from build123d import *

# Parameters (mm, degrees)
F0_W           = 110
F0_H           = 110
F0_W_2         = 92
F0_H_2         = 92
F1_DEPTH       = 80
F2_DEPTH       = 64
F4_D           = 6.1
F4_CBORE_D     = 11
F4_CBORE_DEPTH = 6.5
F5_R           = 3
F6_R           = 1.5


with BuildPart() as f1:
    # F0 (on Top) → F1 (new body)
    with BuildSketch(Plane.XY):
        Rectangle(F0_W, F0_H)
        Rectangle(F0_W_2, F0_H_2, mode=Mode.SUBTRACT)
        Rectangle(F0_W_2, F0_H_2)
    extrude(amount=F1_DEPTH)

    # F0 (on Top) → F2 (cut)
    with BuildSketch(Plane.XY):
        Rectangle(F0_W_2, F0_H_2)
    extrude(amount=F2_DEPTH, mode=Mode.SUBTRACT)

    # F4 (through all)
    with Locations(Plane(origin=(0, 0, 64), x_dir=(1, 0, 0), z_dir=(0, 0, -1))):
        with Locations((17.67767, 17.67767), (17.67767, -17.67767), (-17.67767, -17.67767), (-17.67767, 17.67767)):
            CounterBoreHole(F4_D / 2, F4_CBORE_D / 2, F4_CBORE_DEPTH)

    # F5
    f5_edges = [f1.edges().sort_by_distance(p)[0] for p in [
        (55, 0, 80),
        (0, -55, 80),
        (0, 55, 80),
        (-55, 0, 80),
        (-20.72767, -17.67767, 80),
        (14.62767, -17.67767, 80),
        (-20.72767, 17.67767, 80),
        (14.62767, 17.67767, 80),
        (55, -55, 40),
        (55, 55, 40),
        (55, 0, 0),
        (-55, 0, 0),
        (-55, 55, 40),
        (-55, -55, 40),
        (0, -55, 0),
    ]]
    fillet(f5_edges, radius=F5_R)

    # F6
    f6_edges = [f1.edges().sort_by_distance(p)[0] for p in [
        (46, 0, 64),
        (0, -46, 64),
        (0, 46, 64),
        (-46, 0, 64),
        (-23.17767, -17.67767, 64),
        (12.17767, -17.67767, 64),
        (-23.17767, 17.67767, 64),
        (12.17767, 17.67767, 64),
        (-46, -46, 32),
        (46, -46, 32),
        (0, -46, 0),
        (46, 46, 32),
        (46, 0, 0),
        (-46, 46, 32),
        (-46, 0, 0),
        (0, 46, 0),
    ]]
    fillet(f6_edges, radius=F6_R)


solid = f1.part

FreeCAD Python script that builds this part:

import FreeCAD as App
import Part
import Sketcher
from FreeCAD import Vector
Q = App.Units.Quantity


def edges_at(feature, points):
    """Names of the edges that pass closest to the given points."""
    edges = feature.Shape.Edges
    near = lambda p: min(range(len(edges)), key=lambda i: edges[i].distToShape(Part.Vertex(*p))[0])
    return sorted({f"Edge{near(p) + 1}" for p in points})

doc = App.newDocument("Part")
body = doc.addObject("PartDesign::Body", "Body")

sketch1 = body.newObject("Sketcher::SketchObject", "Sketch")
sketch1.AttachmentSupport = (doc.getObject("XY_Plane"), [""])
sketch1.MapMode = "FlatFace"
sketch1.addGeometry([
    Part.LineSegment(Vector(-55, 55, 0), Vector(-55, -55, 0)),
    Part.LineSegment(Vector(-55, -55, 0), Vector(55, -55, 0)),
    Part.LineSegment(Vector(55, -55, 0), Vector(55, 55, 0)),
    Part.LineSegment(Vector(55, 55, 0), Vector(-55, 55, 0)),
], False)
sketch1.addConstraint([
    Sketcher.Constraint("Coincident", 0, 2, 1, 1),
    Sketcher.Constraint("Coincident", 1, 2, 2, 1),
    Sketcher.Constraint("Coincident", 2, 2, 3, 1),
    Sketcher.Constraint("Coincident", 3, 2, 0, 1),
    Sketcher.Constraint("Vertical", 0),
    Sketcher.Constraint("Horizontal", 1),
    Sketcher.Constraint("Vertical", 2),
    Sketcher.Constraint("Horizontal", 3),
    Sketcher.Constraint("Symmetric", 0, 2, 2, 2, -1, 1),
    Sketcher.Constraint("Equal", 3, 0),
    Sketcher.Constraint("DistanceX", 1, 1, 1, 2, Q("110 mm")),
])
pad1 = body.newObject("PartDesign::Pad", "Pad")
pad1.Profile = sketch1
pad1.Length = 80

sketch2 = body.newObject("Sketcher::SketchObject", "Sketch001")
sketch2.AttachmentSupport = (doc.getObject("XY_Plane"), [""])
sketch2.MapMode = "FlatFace"
sketch2.addGeometry([
    Part.LineSegment(Vector(-46, 46, 0), Vector(-46, -46, 0)),
    Part.LineSegment(Vector(-46, -46, 0), Vector(46, -46, 0)),
    Part.LineSegment(Vector(46, -46, 0), Vector(46, 46, 0)),
    Part.LineSegment(Vector(46, 46, 0), Vector(-46, 46, 0)),
], False)
sketch2.addConstraint([
    Sketcher.Constraint("Coincident", 0, 2, 1, 1),
    Sketcher.Constraint("Coincident", 1, 2, 2, 1),
    Sketcher.Constraint("Coincident", 2, 2, 3, 1),
    Sketcher.Constraint("Coincident", 3, 2, 0, 1),
    Sketcher.Constraint("Vertical", 0),
    Sketcher.Constraint("Horizontal", 1),
    Sketcher.Constraint("Vertical", 2),
    Sketcher.Constraint("Horizontal", 3),
    Sketcher.Constraint("Symmetric", 0, 2, 2, 2, -1, 1),
    Sketcher.Constraint("Equal", 3, 0),
    Sketcher.Constraint("DistanceX", 1, 1, 1, 2, Q("92 mm")),
])
pocket1 = body.newObject("PartDesign::Pocket", "Pocket")
pocket1.Profile = sketch2
pocket1.Length = 64
pocket1.Reversed = True

sketch3 = body.newObject("Sketcher::SketchObject", "Sketch002")
sketch3.AttachmentSupport = (doc.getObject("XY_Plane"), [""])
sketch3.MapMode = "FlatFace"
sketch3.AttachmentOffset = App.Placement(Vector(0, 0, 64), App.Rotation())
sketch3.addGeometry([
    Part.Circle(Vector(17.7, -17.7, 0), Vector(0, 0, 1), 3),
    Part.Circle(Vector(17.7, 17.7, 0), Vector(0, 0, 1), 3),
    Part.Circle(Vector(-17.7, 17.7, 0), Vector(0, 0, 1), 3),
    Part.Circle(Vector(-17.7, -17.7, 0), Vector(0, 0, 1), 3),
], False)
sketch3.addConstraint([
    Sketcher.Constraint("Equal", 0, 1),
    Sketcher.Constraint("Equal", 1, 2),
    Sketcher.Constraint("Equal", 2, 3),
    Sketcher.Constraint("Symmetric", 0, 3, 2, 3, -1, 1),
    Sketcher.Constraint("Symmetric", 1, 3, 3, 3, -1, 1),
    Sketcher.Constraint("Symmetric", 1, 3, 2, 3, -2),
    Sketcher.Constraint("Diameter", 0, Q("6.1 mm")),
    Sketcher.Constraint("DistanceX", -1, 1, 0, 3, Q("17.67767 mm")),
    Sketcher.Constraint("DistanceY", 0, 3, -1, 1, Q("17.67767 mm")),
])
doc.recompute()
hole = body.newObject("PartDesign::Hole", "Hole")
hole.Profile = sketch3
hole.ThreadType = "None"
hole.Diameter = 6.1
hole.DepthType = "ThroughAll"
hole.HoleCutType = "Counterbore"
hole.HoleCutDiameter = 11
hole.HoleCutDepth = 6.5
hole.Reversed = True
doc.recompute()

fillet = body.newObject("PartDesign::Fillet", "Fillet")
fillet.Base = (hole, edges_at(hole, [
    (55, 0, 80),
    (0, -55, 80),
    (0, 55, 80),
    (-55, 0, 80),
    (-14.628, -17.678, 80),
    (20.728, -17.678, 80),
    (-14.628, 17.678, 80),
    (20.728, 17.678, 80),
    (55, -55, 40),
    (55, 55, 40),
    (55, 0, 0),
    (-55, 0, 0),
    (-55, 55, 40),
    (-55, -55, 40),
    (0, -55, 0),
]))
fillet.Radius = 3
doc.recompute()

fillet2 = body.newObject("PartDesign::Fillet", "Fillet001")
fillet2.Base = (fillet, edges_at(fillet, [
    (46, 0, 64),
    (0, -46, 64),
    (0, 46, 64),
    (-46, 0, 64),
    (-23.178, -17.678, 64),
    (12.178, -17.678, 64),
    (-23.178, 17.678, 64),
    (12.178, 17.678, 64),
    (-46, -46, 32),
    (46, -46, 32),
    (0, -46, 0),
    (46, 46, 32),
    (46, 0, 0),
    (-46, 46, 32),
    (-46, 0, 0),
    (0, 46, 0),
]))
fillet2.Radius = 1.5

doc.recompute()
